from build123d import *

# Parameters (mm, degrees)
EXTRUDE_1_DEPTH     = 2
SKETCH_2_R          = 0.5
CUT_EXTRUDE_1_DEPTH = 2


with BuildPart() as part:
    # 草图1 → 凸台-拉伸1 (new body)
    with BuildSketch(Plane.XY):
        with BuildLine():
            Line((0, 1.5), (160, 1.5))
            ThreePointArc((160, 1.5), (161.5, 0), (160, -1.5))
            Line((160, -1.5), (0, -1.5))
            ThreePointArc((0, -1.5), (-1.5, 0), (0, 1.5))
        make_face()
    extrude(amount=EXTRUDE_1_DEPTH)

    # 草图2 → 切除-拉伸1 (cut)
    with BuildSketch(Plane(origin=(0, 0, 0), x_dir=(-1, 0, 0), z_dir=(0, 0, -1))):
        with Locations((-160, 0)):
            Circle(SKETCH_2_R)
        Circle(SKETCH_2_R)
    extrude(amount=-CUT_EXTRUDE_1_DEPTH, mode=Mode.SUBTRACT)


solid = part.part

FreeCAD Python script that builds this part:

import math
import FreeCAD as App
import Part
import Sketcher
Q = App.Units.Quantity

doc = App.newDocument("Part")
body = doc.addObject("PartDesign::Body", "Body")

sketch1 = doc.addObject("Sketcher::SketchObject", "Sketch")
body.addObject(sketch1)
sketch1.AttachmentSupport = (doc.XY_Plane, [""])
sketch1.MapMode = "FlatFace"
sketch1.addGeometry(Part.LineSegment(App.Vector(160, 1.5, 0), App.Vector(0, 1.5, 0)), False)
sketch1.addGeometry(Part.ArcOfCircle(Part.Circle(App.Vector(0, 0, 0), App.Vector(0, 0, 1), 1.5), math.radians(90), math.radians(270)), False)
sketch1.addGeometry(Part.LineSegment(App.Vector(0, -1.5, 0), App.Vector(160, -1.5, 0)), False)
sketch1.addGeometry(Part.ArcOfCircle(Part.Circle(App.Vector(160, 0, 0), App.Vector(0, 0, 1), 1.5), math.radians(-90), math.radians(90)), False)
sketch1.addConstraint(Sketcher.Constraint("Tangent", 0, 2, 1, 1))
sketch1.addConstraint(Sketcher.Constraint("Tangent", 1, 2, 2, 1))
sketch1.addConstraint(Sketcher.Constraint("Tangent", 2, 2, 3, 1))
sketch1.addConstraint(Sketcher.Constraint("Tangent", 3, 2, 0, 1))
sketch1.addConstraint(Sketcher.Constraint("Horizontal", 0))
sketch1.addConstraint(Sketcher.Constraint("Horizontal", 2))
sketch1.addConstraint(Sketcher.Constraint("Coincident", 1, 3, -1, 1))
sketch1.addConstraint(Sketcher.Constraint("Radius", 1, Q("1.5 mm")))
sketch1.addConstraint(Sketcher.Constraint("DistanceX", 0, 2, 0, 1, Q("160 mm")))
pad1 = doc.addObject("PartDesign::Pad", "Pad")
body.addObject(pad1)
pad1.Profile = sketch1
pad1.Length = 2

sketch2 = doc.addObject("Sketcher::SketchObject", "Sketch001")
body.addObject(sketch2)
sketch2.AttachmentSupport = (doc.XY_Plane, [""])
sketch2.MapMode = "FlatFace"
sketch2.addGeometry(Part.Circle(App.Vector(160, 0, 0), App.Vector(0, 0, 1), 0.5), False)
sketch2.addGeometry(Part.Circle(App.Vector(0, 0, 0), App.Vector(0, 0, 1), 0.5), False)
sketch2.addConstraint(Sketcher.Constraint("Coincident", 1, 3, -1, 1))
sketch2.addConstraint(Sketcher.Constraint("Equal", 0, 1))
sketch2.addConstraint(Sketcher.Constraint("PointOnObject", 0, 3, -1))
sketch2.addConstraint(Sketcher.Constraint("Diameter", 0, Q("1 mm")))
sketch2.addConstraint(Sketcher.Constraint("DistanceX", -1, 1, 0, 3, Q("160 mm")))
pocket1 = doc.addObject("PartDesign::Pocket", "Pocket")
body.addObject(pocket1)
pocket1.Profile = sketch2
pocket1.Length = 2
pocket1.Reversed = True

doc.recompute()
